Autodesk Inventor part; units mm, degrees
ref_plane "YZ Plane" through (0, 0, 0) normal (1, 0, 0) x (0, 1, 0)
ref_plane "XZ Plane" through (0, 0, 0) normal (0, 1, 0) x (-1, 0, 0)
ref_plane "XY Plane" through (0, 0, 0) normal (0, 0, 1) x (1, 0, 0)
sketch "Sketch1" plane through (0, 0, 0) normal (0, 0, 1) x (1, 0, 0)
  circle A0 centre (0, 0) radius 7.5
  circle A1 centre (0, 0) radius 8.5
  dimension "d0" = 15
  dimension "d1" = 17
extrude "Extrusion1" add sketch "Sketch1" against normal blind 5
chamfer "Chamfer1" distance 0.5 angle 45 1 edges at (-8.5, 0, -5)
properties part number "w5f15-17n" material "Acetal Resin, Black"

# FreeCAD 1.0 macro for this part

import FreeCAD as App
import Part
import Sketcher
Q = App.Units.Quantity


def edges_at(feature, points):
    """Names of the edges that pass closest to the given points."""
    edges = feature.Shape.Edges
    near = lambda p: min(range(len(edges)), key=lambda i: edges[i].distToShape(Part.Vertex(*p))[0])
    return sorted({f"Edge{near(p) + 1}" for p in points})

doc = App.newDocument("Part")
params = doc.addObject("Spreadsheet::Sheet", "Params")
for row, (alias, value) in enumerate([
    ("sketch1_diameter", "17 mm"),
    ("sketch1_diameter2", "15 mm"),
    ("pad1_length", "5 mm"),
    ("chamfer_size", "0.5 mm"),
], start=1):
    params.set(f"A{row}", alias)
    params.set(f"B{row}", "=" + value)
    params.setAlias(f"B{row}", alias)

body = doc.addObject("PartDesign::Body", "Body")

# Sketch on XY plane
sketch1 = doc.addObject("Sketcher::SketchObject", "Sketch")
body.addObject(sketch1)
sketch1.AttachmentSupport = (doc.XY_Plane, [""])
sketch1.MapMode = "FlatFace"
sketch1.addGeometry([
    Part.Circle(App.Vector(0, 0, 0), App.Vector(0, 0, 1), 8),
    Part.Circle(App.Vector(0, 0, 0), App.Vector(0, 0, 1), 8),
], False)
sketch1.addConstraint([
    Sketcher.Constraint("Coincident", 0, 3, -1, 1),
    Sketcher.Constraint("Coincident", 1, 3, -1, 1),
    Sketcher.Constraint("Diameter", 0, Q("17 mm")),
    Sketcher.Constraint("Diameter", 1, Q("15 mm")),
])
sketch1.setExpression("Constraints[2]", "Params.sketch1_diameter")
sketch1.setExpression("Constraints[3]", "Params.sketch1_diameter2")
pad1 = doc.addObject("PartDesign::Pad", "Pad")
body.addObject(pad1)
pad1.Profile = sketch1
pad1.setExpression("Length", "Params.pad1_length")
pad1.Reversed = True
doc.recompute()

chamfer = doc.addObject("PartDesign::Chamfer", "Chamfer")
body.addObject(chamfer)
chamfer.Base = (pad1, edges_at(pad1, [(-8.5, 0, -5)]))
chamfer.setExpression("Size", "Params.chamfer_size")

doc.recompute()
